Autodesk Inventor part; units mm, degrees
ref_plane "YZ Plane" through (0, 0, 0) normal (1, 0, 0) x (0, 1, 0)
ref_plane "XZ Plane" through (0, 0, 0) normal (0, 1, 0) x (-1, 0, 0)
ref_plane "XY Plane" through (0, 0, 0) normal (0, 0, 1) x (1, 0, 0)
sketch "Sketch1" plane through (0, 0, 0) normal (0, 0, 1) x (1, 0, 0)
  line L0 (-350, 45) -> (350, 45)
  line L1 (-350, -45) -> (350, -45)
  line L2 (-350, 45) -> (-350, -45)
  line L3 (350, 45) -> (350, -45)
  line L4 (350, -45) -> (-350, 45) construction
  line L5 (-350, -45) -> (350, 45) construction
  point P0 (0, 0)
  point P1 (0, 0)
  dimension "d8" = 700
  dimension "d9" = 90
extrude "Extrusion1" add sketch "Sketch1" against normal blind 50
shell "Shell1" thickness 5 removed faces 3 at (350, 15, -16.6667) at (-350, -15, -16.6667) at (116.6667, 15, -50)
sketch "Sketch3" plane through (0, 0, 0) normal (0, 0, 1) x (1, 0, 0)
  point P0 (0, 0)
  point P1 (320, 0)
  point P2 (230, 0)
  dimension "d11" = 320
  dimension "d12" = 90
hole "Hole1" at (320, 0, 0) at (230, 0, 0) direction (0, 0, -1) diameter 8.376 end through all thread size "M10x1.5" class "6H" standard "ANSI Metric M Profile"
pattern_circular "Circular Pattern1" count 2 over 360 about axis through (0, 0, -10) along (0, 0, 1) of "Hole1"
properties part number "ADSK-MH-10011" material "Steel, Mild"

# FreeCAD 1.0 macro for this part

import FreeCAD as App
import Part
import Sketcher


def faces_at(feature, points):
    """Names of the faces that lie closest to the given points."""
    faces = feature.Shape.Faces
    near = lambda p: min(range(len(faces)), key=lambda i: faces[i].distToShape(Part.Vertex(*p))[0])
    return sorted({f"Face{near(p) + 1}" for p in points})

doc = App.newDocument("Part")
body = doc.addObject("PartDesign::Body", "Body")

# Sketch on XY plane
sketch1 = body.newObject("Sketcher::SketchObject", "Sketch")
sketch1.AttachmentSupport = (doc.getObject("XY_Plane"), [""])
sketch1.MapMode = "FlatFace"
sketch1.addGeometry([
    Part.LineSegment(App.Vector(350, 45, 0), App.Vector(-350, 45, 0)),
    Part.LineSegment(App.Vector(-350, 45, 0), App.Vector(-350, -45, 0)),
    Part.LineSegment(App.Vector(-350, -45, 0), App.Vector(350, -45, 0)),
    Part.LineSegment(App.Vector(350, -45, 0), App.Vector(350, 45, 0)),
], False)
sketch1.addConstraint([
    Sketcher.Constraint("Coincident", 0, 2, 1, 1),
    Sketcher.Constraint("Coincident", 1, 2, 2, 1),
    Sketcher.Constraint("Coincident", 2, 2, 3, 1),
    Sketcher.Constraint("Coincident", 3, 2, 0, 1),
    Sketcher.Constraint("Horizontal", 0),
    Sketcher.Constraint("Vertical", 1),
    Sketcher.Constraint("Horizontal", 2),
    Sketcher.Constraint("Vertical", 3),
    Sketcher.Constraint("Symmetric", 0, 2, 2, 2, -1, 1),
    Sketcher.Constraint("DistanceX", 0, 2, 0, 1, 700.0),
    Sketcher.Constraint("DistanceY", 1, 2, 1, 1, 90.0),
])
pad1 = body.newObject("PartDesign::Pad", "Pad")
pad1.Profile = sketch1
pad1.Length = 50
pad1.Reversed = True
doc.recompute()

thickness = body.newObject("PartDesign::Thickness", "Thickness")
thickness.Base = (pad1, faces_at(pad1, [(350, 15, -16.667), (-350, -15, -16.667), (116.667, 15, -50)]))
thickness.Value = 5
thickness.Reversed = True
thickness.Join = "Intersection"

# Sketch on XY plane
sketch2 = body.newObject("Sketcher::SketchObject", "Sketch001")
sketch2.AttachmentSupport = (doc.getObject("XY_Plane"), [""])
sketch2.MapMode = "FlatFace"
sketch2.addGeometry([
    Part.Circle(App.Vector(320, 0, 0), App.Vector(0, 0, 1), 4.2),
    Part.Circle(App.Vector(230, 0, 0), App.Vector(0, 0, 1), 4.2),
], False)
sketch2.addConstraint([
    Sketcher.Constraint("Equal", 0, 1),
    Sketcher.Constraint("PointOnObject", 0, 3, -1),
    Sketcher.Constraint("PointOnObject", 1, 3, -1),
    Sketcher.Constraint("Diameter", 0, 8.376),
    Sketcher.Constraint("DistanceX", -1, 1, 0, 3, 320.0),
    Sketcher.Constraint("DistanceX", -1, 1, 1, 3, 230.0),
])
doc.recompute()
hole = body.newObject("PartDesign::Hole", "Hole")
hole.Profile = sketch2
hole.ThreadType = "None"
hole.Diameter = 8.376
hole.DepthType = "ThroughAll"
doc.recompute()

polarpattern = body.newObject("PartDesign::PolarPattern", "PolarPattern")
polarpattern.Originals = [hole]
polarpattern.Axis = (doc.getObject("Z_Axis"), [""])
polarpattern.Angle = 360
polarpattern.Occurrences = 2
body.Tip = polarpattern

doc.recompute()
